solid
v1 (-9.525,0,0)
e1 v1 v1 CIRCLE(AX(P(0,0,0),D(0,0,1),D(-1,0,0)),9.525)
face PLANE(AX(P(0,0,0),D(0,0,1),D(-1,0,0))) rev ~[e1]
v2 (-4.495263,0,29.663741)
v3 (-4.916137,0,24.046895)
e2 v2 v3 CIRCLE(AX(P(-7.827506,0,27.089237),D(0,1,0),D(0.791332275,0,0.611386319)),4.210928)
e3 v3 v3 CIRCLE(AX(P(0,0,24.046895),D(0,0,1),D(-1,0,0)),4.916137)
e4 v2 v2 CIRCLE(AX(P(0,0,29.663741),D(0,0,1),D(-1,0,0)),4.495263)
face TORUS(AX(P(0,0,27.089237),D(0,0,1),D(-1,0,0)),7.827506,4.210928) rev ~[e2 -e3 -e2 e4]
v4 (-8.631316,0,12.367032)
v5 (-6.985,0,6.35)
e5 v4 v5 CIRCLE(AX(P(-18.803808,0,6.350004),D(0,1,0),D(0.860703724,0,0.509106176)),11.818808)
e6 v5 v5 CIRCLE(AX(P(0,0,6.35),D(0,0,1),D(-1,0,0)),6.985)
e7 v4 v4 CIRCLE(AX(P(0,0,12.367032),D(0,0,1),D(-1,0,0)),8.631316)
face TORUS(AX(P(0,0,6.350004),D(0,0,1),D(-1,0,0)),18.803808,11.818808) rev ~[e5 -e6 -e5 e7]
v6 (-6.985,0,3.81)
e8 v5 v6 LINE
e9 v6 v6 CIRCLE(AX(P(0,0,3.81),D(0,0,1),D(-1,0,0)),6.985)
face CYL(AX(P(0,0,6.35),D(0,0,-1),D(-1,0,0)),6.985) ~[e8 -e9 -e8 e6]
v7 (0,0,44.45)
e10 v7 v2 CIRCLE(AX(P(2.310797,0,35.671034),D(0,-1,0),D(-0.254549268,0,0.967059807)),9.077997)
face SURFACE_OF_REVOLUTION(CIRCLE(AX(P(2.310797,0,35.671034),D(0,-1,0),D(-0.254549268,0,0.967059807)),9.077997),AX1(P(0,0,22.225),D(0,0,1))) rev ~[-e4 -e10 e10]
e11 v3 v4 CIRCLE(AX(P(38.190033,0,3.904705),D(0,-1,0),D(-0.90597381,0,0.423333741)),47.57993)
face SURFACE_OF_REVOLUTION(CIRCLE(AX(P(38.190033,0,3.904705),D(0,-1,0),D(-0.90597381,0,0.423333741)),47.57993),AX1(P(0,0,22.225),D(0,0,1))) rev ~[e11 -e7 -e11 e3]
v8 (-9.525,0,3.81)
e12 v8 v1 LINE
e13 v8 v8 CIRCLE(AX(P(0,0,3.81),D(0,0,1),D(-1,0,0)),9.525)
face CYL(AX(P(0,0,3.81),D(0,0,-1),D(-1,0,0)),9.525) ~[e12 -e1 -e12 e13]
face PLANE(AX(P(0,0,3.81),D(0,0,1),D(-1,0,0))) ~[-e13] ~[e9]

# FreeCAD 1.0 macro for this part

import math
import FreeCAD as App
import Part
import Sketcher
from FreeCAD import Vector
Q = App.Units.Quantity

doc = App.newDocument("Part")
body = doc.addObject("PartDesign::Body", "Body")

sketch1 = doc.addObject("Sketcher::SketchObject", "Sketch")
body.addObject(sketch1)
sketch1.AttachmentSupport = (doc.XZ_Plane, [""])
sketch1.MapMode = "FlatFace"
sketch1.addGeometry(Part.LineSegment(Vector(-9.525, 0, 0), Vector(0, 0, 0)), False)
sketch1.addGeometry(Part.LineSegment(Vector(0, 0, 0), Vector(0, 44.45, 0)), False)
sketch1.addGeometry(Part.ArcOfCircle(Part.Circle(Vector(2.310797, 35.671034, 0), Vector(0, 0, 1), 9.077997), math.radians(104.746879), math.radians(221.432873)), False)
sketch1.addGeometry(Part.ArcOfCircle(Part.Circle(Vector(-7.827506, 27.089237, 0), Vector(0, 0, 1), 4.210928), math.radians(-46.260216), math.radians(37.68981)), False)
sketch1.addGeometry(Part.ArcOfCircle(Part.Circle(Vector(38.190033, 3.904705, 0), Vector(0, 0, 1), 47.57993), math.radians(154.95476), math.radians(169.755158)), False)
sketch1.addGeometry(Part.ArcOfCircle(Part.Circle(Vector(-18.803808, 6.350004, 0), Vector(0, 0, 1), 11.818808), math.radians(-0.000018), math.radians(30.604311)), False)
sketch1.addGeometry(Part.LineSegment(Vector(-6.985, 6.35, 0), Vector(-6.985, 3.81, 0)), False)
sketch1.addGeometry(Part.LineSegment(Vector(-6.985, 3.81, 0), Vector(-9.525, 3.81, 0)), False)
sketch1.addGeometry(Part.LineSegment(Vector(-9.525, 3.81, 0), Vector(-9.525, 0, 0)), False)
sketch1.addConstraint(Sketcher.Constraint("Coincident", 0, 2, 1, 1))
sketch1.addConstraint(Sketcher.Constraint("Coincident", 1, 2, 2, 1))
sketch1.addConstraint(Sketcher.Constraint("Coincident", 2, 2, 3, 2))
sketch1.addConstraint(Sketcher.Constraint("Coincident", 3, 1, 4, 1))
sketch1.addConstraint(Sketcher.Constraint("Coincident", 4, 2, 5, 2))
sketch1.addConstraint(Sketcher.Constraint("Coincident", 5, 1, 6, 1))
sketch1.addConstraint(Sketcher.Constraint("Coincident", 6, 2, 7, 1))
sketch1.addConstraint(Sketcher.Constraint("Coincident", 7, 2, 8, 1))
sketch1.addConstraint(Sketcher.Constraint("Coincident", 8, 2, 0, 1))
sketch1.addConstraint(Sketcher.Constraint("Horizontal", 0))
sketch1.addConstraint(Sketcher.Constraint("Vertical", 1))
sketch1.addConstraint(Sketcher.Constraint("Vertical", 6))
sketch1.addConstraint(Sketcher.Constraint("Horizontal", 7))
sketch1.addConstraint(Sketcher.Constraint("Vertical", 8))
sketch1.addConstraint(Sketcher.Constraint("Coincident", 0, 2, -1, 1))
sketch1.addConstraint(Sketcher.Constraint("DistanceX", 7, 2, 7, 1, Q("0.1 in")))
sketch1.addConstraint(Sketcher.Constraint("DistanceY", 6, 2, 6, 1, Q("0.1 in")))
sketch1.addConstraint(Sketcher.Constraint("DistanceY", 1, 1, 1, 2, Q("1.75 in")))
sketch1.addConstraint(Sketcher.Constraint("DistanceY", 8, 2, 8, 1, Q("0.15 in")))
sketch1.addConstraint(Sketcher.Constraint("DistanceY", 5, 3, 1, 2, Q("1.4999999 in")))
sketch1.addConstraint(Sketcher.Constraint("DistanceX", 0, 1, 0, 2, Q("0.375 in")))
sketch1.addConstraint(Sketcher.Constraint("Radius", 3, Q("4.210928 mm")))
sketch1.addConstraint(Sketcher.Constraint("Radius", 4, Q("47.57993 mm")))
sketch1.addConstraint(Sketcher.Constraint("Radius", 5, Q("11.818808 mm")))
sketch1.addConstraint(Sketcher.Constraint("Radius", 2, Q("9.077997 mm")))
sketch1.addConstraint(Sketcher.Constraint("DistanceX", 5, 3, 3, 3, Q("10.976302 mm")))
sketch1.addConstraint(Sketcher.Constraint("DistanceY", 4, 3, 5, 3, Q("2.445298 mm")))
sketch1.addConstraint(Sketcher.Constraint("DistanceY", -1, 1, 2, 2, Q("29.663741 mm")))
sketch1.addConstraint(Sketcher.Constraint("DistanceY", 4, 3, 2, 3, Q("31.766329 mm")))
sketch1.addConstraint(Sketcher.Constraint("DistanceX", 3, 3, 4, 3, Q("46.01754 mm")))
revolution = doc.addObject("PartDesign::Revolution", "Revolution")
body.addObject(revolution)
revolution.Profile = sketch1
revolution.ReferenceAxis = (sketch1, ["V_Axis"])
revolution.Angle = 360

doc.recompute()
